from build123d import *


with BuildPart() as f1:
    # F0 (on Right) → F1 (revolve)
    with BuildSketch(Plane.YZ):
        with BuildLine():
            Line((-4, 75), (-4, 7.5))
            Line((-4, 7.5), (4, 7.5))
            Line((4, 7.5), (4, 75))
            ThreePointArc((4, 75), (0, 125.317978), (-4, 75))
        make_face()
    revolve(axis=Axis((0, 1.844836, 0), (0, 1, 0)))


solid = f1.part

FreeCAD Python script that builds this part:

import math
import FreeCAD as App
import Part
import Sketcher

V = App.Vector

doc = App.newDocument("Part")
body = doc.addObject("PartDesign::Body", "Body")

# Sketch on YZ plane
sketch1 = body.newObject("Sketcher::SketchObject", "Sketch")
sketch1.AttachmentSupport = (doc.getObject("YZ_Plane"), [""])
sketch1.MapMode = "FlatFace"
sketch1.addGeometry([
    Part.LineSegment(V(-4, 75, 0), V(-4, 8, 0)),
    Part.LineSegment(V(-4, 8, 0), V(4, 8, 0)),
    Part.LineSegment(V(4, 8, 0), V(4, 75, 0)),
    Part.ArcOfCircle(Part.Circle(V(0, 100, 0), V(0, 0, 1), 25), math.radians(-81), math.radians(261)),
], False)
sketch1.addConstraint([
    Sketcher.Constraint("Coincident", 0, 2, 1, 1),
    Sketcher.Constraint("Coincident", 1, 2, 2, 1),
    Sketcher.Constraint("Coincident", 2, 2, 3, 1),
    Sketcher.Constraint("Coincident", 3, 2, 0, 1),
    Sketcher.Constraint("Vertical", 0),
    Sketcher.Constraint("Horizontal", 1),
    Sketcher.Constraint("Vertical", 2),
    Sketcher.Constraint("Symmetric", 2, 2, 3, 2, -2),
    Sketcher.Constraint("DistanceX", 1, 1, 1, 2, 8.0),
    Sketcher.Constraint("DistanceY", 0, 2, 0, 1, 67.5),
    Sketcher.Constraint("DistanceY", -1, 1, 3, 3, 100.0),
    Sketcher.Constraint("DistanceY", -1, 1, 2, 2, 75.0),
])
revolution = body.newObject("PartDesign::Revolution", "Revolution")
revolution.Profile = sketch1
revolution.ReferenceAxis = (sketch1, ["H_Axis"])
revolution.Angle = 360

doc.recompute()
